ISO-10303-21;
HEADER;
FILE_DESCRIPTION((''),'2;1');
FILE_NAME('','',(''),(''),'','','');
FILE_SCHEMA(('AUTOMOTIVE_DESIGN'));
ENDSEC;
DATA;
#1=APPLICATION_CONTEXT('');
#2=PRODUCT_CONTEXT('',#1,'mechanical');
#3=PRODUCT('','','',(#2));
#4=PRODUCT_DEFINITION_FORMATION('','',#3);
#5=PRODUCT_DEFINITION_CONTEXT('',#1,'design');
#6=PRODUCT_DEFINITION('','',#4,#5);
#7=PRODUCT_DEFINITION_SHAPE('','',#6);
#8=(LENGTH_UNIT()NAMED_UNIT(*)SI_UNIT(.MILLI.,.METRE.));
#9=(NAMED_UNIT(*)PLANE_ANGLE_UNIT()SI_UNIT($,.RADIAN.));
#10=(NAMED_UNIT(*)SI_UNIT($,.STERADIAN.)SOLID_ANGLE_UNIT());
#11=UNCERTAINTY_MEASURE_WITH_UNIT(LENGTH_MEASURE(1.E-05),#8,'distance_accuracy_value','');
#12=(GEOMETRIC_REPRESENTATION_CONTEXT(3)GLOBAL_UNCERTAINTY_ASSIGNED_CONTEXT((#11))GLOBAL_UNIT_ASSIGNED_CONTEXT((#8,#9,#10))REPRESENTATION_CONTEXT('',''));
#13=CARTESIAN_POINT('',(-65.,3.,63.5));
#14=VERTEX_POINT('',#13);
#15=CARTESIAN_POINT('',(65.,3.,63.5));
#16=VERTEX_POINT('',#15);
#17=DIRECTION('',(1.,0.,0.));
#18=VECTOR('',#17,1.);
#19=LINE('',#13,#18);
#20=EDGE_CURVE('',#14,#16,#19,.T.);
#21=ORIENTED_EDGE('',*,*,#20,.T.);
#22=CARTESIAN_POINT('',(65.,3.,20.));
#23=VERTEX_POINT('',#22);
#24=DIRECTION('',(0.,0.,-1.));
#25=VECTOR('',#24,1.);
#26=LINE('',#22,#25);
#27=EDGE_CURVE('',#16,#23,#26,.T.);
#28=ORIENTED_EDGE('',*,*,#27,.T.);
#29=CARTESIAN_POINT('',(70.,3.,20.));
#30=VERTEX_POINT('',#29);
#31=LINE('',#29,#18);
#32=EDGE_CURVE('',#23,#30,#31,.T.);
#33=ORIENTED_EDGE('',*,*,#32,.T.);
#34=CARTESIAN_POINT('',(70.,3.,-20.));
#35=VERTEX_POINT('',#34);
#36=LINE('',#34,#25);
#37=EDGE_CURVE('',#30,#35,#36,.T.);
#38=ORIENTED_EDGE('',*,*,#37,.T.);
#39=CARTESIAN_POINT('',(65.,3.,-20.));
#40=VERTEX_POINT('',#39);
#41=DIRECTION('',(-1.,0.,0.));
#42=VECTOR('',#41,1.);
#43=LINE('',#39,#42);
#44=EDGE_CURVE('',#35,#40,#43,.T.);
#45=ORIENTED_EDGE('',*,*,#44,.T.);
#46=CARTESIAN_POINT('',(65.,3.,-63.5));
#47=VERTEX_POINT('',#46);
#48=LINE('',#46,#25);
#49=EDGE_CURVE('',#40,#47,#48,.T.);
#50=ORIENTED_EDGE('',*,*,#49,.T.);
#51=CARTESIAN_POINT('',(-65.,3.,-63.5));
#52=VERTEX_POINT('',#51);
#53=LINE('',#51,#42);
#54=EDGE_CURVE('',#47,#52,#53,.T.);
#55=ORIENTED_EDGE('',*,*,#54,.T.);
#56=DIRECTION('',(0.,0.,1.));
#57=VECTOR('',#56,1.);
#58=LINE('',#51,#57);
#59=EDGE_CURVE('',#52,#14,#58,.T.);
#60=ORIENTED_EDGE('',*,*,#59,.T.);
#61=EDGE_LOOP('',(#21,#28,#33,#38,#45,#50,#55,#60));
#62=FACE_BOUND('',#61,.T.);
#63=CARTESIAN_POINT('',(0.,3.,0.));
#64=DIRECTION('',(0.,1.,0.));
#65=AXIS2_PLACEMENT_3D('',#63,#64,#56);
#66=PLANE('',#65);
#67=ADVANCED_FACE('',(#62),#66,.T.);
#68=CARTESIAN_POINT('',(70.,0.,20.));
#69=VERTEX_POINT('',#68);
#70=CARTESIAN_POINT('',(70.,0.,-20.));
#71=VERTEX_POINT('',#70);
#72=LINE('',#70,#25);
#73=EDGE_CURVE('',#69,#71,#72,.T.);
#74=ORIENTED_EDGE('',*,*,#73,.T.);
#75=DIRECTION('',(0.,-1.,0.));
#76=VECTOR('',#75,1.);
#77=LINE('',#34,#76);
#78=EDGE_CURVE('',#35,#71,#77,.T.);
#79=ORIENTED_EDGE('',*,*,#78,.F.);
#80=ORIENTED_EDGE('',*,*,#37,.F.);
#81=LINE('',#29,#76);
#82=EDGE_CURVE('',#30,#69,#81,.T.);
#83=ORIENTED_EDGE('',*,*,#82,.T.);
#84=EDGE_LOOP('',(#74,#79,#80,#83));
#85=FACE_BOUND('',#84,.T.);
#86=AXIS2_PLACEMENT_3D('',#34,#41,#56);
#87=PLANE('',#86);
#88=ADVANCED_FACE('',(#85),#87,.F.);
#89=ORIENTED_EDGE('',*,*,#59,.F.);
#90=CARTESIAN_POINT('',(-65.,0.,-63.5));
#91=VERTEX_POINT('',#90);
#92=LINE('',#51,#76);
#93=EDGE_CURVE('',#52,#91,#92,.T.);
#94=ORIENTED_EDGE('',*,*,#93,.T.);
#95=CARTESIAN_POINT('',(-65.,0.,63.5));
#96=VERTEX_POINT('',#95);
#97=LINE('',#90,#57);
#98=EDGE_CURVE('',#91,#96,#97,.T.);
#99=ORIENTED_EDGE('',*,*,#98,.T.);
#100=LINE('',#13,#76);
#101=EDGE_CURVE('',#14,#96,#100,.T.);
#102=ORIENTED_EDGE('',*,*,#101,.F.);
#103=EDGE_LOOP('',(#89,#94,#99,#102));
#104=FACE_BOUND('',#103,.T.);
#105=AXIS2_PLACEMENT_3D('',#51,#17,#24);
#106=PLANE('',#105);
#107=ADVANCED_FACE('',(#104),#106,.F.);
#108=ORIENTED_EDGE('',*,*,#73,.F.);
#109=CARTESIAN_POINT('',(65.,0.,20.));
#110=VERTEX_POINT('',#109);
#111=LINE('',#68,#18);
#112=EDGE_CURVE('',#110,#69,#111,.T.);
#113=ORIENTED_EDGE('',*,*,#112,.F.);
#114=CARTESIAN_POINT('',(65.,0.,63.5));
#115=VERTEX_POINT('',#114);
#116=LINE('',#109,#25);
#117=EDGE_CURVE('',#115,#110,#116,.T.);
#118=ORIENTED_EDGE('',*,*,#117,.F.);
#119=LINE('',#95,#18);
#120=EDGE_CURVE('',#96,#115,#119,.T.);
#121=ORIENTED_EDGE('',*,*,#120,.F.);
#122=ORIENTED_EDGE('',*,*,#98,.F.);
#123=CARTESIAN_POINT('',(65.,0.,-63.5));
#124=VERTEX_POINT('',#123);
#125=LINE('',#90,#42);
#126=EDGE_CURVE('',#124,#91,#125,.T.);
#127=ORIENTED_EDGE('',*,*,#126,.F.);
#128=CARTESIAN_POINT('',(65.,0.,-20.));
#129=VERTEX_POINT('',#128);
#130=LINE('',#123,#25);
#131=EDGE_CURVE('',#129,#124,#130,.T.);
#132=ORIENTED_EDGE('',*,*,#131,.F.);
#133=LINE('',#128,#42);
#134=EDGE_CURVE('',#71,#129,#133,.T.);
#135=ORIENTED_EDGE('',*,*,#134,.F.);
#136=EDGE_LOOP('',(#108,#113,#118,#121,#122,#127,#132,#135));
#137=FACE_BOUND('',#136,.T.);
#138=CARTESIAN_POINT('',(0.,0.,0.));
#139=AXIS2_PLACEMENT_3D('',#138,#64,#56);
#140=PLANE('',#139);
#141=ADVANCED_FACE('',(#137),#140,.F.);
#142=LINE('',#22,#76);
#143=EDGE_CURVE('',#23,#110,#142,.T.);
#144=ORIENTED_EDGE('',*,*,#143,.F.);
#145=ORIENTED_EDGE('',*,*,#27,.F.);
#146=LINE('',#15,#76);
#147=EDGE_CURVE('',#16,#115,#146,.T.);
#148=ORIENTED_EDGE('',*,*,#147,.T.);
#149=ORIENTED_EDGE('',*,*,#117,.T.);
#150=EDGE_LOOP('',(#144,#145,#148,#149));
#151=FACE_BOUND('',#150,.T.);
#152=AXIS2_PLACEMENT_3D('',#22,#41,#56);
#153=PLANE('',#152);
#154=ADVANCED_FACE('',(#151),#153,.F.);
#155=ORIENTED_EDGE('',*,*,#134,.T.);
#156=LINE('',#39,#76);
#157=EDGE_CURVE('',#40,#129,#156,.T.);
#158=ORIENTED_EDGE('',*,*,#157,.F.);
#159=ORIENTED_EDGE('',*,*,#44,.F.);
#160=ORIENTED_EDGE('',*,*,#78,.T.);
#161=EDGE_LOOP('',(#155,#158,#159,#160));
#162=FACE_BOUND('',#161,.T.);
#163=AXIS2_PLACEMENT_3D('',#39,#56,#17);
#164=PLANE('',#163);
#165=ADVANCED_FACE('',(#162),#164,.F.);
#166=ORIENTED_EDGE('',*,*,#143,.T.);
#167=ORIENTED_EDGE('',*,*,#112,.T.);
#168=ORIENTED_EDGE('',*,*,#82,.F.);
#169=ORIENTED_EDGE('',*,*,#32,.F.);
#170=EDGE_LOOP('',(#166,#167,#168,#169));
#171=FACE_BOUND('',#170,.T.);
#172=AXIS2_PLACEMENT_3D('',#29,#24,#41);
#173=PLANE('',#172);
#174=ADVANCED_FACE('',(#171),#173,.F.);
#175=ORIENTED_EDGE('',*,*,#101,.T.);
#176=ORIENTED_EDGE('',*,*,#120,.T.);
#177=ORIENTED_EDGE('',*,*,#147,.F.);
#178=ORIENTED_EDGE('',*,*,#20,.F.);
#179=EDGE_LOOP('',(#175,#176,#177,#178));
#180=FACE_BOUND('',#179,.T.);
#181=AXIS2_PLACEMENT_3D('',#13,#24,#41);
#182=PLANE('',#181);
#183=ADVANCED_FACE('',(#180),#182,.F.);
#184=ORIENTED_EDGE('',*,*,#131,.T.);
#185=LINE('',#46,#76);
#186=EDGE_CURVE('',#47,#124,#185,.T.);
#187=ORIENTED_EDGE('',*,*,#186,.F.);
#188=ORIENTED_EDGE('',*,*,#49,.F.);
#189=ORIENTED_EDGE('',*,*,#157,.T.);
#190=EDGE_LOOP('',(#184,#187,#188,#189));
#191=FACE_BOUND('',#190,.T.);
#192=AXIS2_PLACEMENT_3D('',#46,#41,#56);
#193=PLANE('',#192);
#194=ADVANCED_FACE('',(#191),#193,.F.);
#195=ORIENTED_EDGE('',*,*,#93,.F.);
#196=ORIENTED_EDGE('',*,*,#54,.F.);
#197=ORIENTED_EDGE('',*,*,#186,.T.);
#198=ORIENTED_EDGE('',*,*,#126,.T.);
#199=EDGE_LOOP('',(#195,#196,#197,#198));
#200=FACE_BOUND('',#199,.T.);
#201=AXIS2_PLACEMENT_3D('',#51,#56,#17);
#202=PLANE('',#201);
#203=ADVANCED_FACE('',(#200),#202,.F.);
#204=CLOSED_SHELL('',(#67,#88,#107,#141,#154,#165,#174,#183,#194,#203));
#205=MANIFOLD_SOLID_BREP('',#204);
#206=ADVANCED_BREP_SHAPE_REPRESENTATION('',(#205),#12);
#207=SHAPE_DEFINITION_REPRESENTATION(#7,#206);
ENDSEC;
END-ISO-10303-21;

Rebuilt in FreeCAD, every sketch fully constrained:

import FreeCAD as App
import Part
import Sketcher
from FreeCAD import Vector
Q = App.Units.Quantity

doc = App.newDocument("Part")
body = doc.addObject("PartDesign::Body", "Body")

sketch1 = body.newObject("Sketcher::SketchObject", "Sketch")
sketch1.AttachmentSupport = (doc.getObject("XZ_Plane"), [""])
sketch1.MapMode = "FlatFace"
sketch1.addGeometry(Part.LineSegment(Vector(70, -20, 0), Vector(65, -20, 0)), False)
sketch1.addGeometry(Part.LineSegment(Vector(65, -20, 0), Vector(65, -63.5, 0)), False)
sketch1.addGeometry(Part.LineSegment(Vector(65, -63.5, 0), Vector(-65, -63.5, 0)), False)
sketch1.addGeometry(Part.LineSegment(Vector(-65, -63.5, 0), Vector(-65, 63.5, 0)), False)
sketch1.addGeometry(Part.LineSegment(Vector(-65, 63.5, 0), Vector(65, 63.5, 0)), False)
sketch1.addGeometry(Part.LineSegment(Vector(65, 63.5, 0), Vector(65, 20, 0)), False)
sketch1.addGeometry(Part.LineSegment(Vector(65, 20, 0), Vector(70, 20, 0)), False)
sketch1.addGeometry(Part.LineSegment(Vector(70, 20, 0), Vector(70, -20, 0)), False)
sketch1.addConstraint(Sketcher.Constraint("Coincident", 0, 2, 1, 1))
sketch1.addConstraint(Sketcher.Constraint("Coincident", 1, 2, 2, 1))
sketch1.addConstraint(Sketcher.Constraint("Coincident", 2, 2, 3, 1))
sketch1.addConstraint(Sketcher.Constraint("Coincident", 3, 2, 4, 1))
sketch1.addConstraint(Sketcher.Constraint("Coincident", 4, 2, 5, 1))
sketch1.addConstraint(Sketcher.Constraint("Coincident", 5, 2, 6, 1))
sketch1.addConstraint(Sketcher.Constraint("Coincident", 6, 2, 7, 1))
sketch1.addConstraint(Sketcher.Constraint("Coincident", 7, 2, 0, 1))
sketch1.addConstraint(Sketcher.Constraint("Horizontal", 0))
sketch1.addConstraint(Sketcher.Constraint("Vertical", 1))
sketch1.addConstraint(Sketcher.Constraint("Horizontal", 2))
sketch1.addConstraint(Sketcher.Constraint("Vertical", 3))
sketch1.addConstraint(Sketcher.Constraint("Horizontal", 4))
sketch1.addConstraint(Sketcher.Constraint("Vertical", 5))
sketch1.addConstraint(Sketcher.Constraint("Horizontal", 6))
sketch1.addConstraint(Sketcher.Constraint("Vertical", 7))
sketch1.addConstraint(Sketcher.Constraint("Symmetric", 1, 2, 3, 2, -1, 1))
sketch1.addConstraint(Sketcher.Constraint("Symmetric", 0, 2, 5, 2, -1))
sketch1.addConstraint(Sketcher.Constraint("DistanceX", 0, 2, 0, 1, Q("5 mm")))
sketch1.addConstraint(Sketcher.Constraint("DistanceX", 2, 2, 2, 1, Q("130 mm")))
sketch1.addConstraint(Sketcher.Constraint("DistanceY", 3, 1, 3, 2, Q("127 mm")))
sketch1.addConstraint(Sketcher.Constraint("DistanceY", 7, 2, 7, 1, Q("40 mm")))
pad1 = body.newObject("PartDesign::Pad", "Pad")
pad1.Profile = sketch1
pad1.Length = 3
pad1.Reversed = True

doc.recompute()
